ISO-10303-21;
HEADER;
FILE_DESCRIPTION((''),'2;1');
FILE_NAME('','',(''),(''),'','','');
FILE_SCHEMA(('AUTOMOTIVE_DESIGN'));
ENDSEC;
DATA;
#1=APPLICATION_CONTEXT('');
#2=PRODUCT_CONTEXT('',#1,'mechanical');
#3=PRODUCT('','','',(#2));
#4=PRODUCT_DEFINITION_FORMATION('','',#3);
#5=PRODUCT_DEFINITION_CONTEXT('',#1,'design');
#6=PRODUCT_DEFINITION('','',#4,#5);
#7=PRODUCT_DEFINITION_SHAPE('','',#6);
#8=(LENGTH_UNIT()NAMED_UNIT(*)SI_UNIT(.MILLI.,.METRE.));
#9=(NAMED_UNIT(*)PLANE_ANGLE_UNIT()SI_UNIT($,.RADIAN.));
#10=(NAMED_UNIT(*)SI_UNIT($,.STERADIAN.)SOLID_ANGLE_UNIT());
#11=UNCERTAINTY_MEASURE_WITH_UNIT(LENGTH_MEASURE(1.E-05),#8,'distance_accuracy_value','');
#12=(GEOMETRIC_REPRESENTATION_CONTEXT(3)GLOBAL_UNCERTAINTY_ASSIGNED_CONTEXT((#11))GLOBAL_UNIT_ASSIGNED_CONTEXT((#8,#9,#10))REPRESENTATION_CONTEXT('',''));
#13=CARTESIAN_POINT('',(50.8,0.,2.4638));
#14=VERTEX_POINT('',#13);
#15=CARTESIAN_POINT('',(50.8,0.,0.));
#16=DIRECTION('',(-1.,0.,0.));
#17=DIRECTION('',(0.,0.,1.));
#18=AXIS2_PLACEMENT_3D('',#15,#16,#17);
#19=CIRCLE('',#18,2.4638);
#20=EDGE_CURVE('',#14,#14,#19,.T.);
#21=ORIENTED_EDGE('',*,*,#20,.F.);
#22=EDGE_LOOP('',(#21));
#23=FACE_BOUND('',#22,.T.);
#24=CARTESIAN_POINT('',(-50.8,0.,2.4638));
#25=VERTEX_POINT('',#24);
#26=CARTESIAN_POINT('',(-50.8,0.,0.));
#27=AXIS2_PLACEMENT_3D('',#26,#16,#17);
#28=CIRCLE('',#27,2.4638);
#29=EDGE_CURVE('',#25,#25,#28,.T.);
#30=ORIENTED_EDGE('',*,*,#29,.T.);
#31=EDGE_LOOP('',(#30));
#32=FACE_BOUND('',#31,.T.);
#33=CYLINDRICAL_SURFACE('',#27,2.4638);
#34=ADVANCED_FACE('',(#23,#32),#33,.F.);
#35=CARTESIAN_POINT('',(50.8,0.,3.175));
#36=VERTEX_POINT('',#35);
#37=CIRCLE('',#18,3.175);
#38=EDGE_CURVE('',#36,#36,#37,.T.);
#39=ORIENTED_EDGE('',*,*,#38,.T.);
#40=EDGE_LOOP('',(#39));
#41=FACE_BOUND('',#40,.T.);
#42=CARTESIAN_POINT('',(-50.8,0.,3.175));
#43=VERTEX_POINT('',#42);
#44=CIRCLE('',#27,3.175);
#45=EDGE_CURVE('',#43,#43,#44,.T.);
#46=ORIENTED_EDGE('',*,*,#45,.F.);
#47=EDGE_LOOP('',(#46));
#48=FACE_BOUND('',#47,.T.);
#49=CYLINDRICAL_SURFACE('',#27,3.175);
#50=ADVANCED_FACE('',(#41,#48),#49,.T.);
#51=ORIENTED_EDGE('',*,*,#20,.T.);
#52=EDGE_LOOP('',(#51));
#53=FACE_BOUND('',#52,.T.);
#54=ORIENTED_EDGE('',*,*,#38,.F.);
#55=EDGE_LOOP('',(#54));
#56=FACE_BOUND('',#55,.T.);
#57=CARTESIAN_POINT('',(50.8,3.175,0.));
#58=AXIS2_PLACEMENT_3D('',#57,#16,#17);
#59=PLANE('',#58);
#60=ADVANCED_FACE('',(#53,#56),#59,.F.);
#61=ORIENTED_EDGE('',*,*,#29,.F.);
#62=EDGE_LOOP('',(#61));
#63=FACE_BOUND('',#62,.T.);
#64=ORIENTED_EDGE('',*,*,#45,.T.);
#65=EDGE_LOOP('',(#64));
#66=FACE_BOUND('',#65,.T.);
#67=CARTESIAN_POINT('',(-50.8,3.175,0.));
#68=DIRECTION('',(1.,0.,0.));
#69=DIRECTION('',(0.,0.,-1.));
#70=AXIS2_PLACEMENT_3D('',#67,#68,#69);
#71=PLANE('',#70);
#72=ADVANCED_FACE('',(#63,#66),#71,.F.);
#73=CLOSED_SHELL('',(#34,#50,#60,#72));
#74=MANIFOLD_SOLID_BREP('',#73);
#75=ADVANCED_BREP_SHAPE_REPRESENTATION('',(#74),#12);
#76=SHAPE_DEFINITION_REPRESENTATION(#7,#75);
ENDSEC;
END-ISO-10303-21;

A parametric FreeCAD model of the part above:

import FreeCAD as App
import Part
import Sketcher
from FreeCAD import Vector
Q = App.Units.Quantity

doc = App.newDocument("Part")
params = doc.addObject("Spreadsheet::Sheet", "Params")
for row, (alias, value) in enumerate([
    ("sketch1_width", "4 in"),
    ("sketch1_height", "0.028 in"),
    ("revolution_angle", "360 deg"),
], start=1):
    params.set(f"A{row}", alias)
    params.set(f"B{row}", "=" + value)
    params.setAlias(f"B{row}", alias)

body = doc.addObject("PartDesign::Body", "Body")

# Sketch on XY plane
sketch1 = body.newObject("Sketcher::SketchObject", "Sketch")
sketch1.AttachmentSupport = (doc.getObject("XY_Plane"), [""])
sketch1.MapMode = "FlatFace"
sketch1.addGeometry(Part.LineSegment(Vector(-50.8, 3.175, 0), Vector(-50.8, 2.4638, 0)), False)
sketch1.addGeometry(Part.LineSegment(Vector(-50.8, 2.4638, 0), Vector(50.8, 2.4638, 0)), False)
sketch1.addGeometry(Part.LineSegment(Vector(50.8, 2.4638, 0), Vector(50.8, 3.175, 0)), False)
sketch1.addGeometry(Part.LineSegment(Vector(50.8, 3.175, 0), Vector(-50.8, 3.175, 0)), False)
sketch1.addConstraint(Sketcher.Constraint("Coincident", 0, 2, 1, 1))
sketch1.addConstraint(Sketcher.Constraint("Coincident", 1, 2, 2, 1))
sketch1.addConstraint(Sketcher.Constraint("Coincident", 2, 2, 3, 1))
sketch1.addConstraint(Sketcher.Constraint("Coincident", 3, 2, 0, 1))
sketch1.addConstraint(Sketcher.Constraint("Vertical", 0))
sketch1.addConstraint(Sketcher.Constraint("Horizontal", 1))
sketch1.addConstraint(Sketcher.Constraint("Vertical", 2))
sketch1.addConstraint(Sketcher.Constraint("Horizontal", 3))
sketch1.addConstraint(Sketcher.Constraint("DistanceX", 1, 1, 1, 2, Q("4 in")))
sketch1.addConstraint(Sketcher.Constraint("DistanceX", 0, 2, -1, 1, Q("2 in")))
sketch1.addConstraint(Sketcher.Constraint("DistanceY", 0, 2, 0, 1, Q("0.028 in")))
sketch1.addConstraint(Sketcher.Constraint("DistanceY", -1, 1, 0, 2, Q("0.097 in")))
sketch1.setExpression("Constraints[8]", "Params.sketch1_width")
sketch1.setExpression("Constraints[10]", "Params.sketch1_height")
revolution = body.newObject("PartDesign::Revolution", "Revolution")
revolution.Profile = sketch1
revolution.ReferenceAxis = (sketch1, ["H_Axis"])
revolution.setExpression("Angle", "Params.revolution_angle")

doc.recompute()
